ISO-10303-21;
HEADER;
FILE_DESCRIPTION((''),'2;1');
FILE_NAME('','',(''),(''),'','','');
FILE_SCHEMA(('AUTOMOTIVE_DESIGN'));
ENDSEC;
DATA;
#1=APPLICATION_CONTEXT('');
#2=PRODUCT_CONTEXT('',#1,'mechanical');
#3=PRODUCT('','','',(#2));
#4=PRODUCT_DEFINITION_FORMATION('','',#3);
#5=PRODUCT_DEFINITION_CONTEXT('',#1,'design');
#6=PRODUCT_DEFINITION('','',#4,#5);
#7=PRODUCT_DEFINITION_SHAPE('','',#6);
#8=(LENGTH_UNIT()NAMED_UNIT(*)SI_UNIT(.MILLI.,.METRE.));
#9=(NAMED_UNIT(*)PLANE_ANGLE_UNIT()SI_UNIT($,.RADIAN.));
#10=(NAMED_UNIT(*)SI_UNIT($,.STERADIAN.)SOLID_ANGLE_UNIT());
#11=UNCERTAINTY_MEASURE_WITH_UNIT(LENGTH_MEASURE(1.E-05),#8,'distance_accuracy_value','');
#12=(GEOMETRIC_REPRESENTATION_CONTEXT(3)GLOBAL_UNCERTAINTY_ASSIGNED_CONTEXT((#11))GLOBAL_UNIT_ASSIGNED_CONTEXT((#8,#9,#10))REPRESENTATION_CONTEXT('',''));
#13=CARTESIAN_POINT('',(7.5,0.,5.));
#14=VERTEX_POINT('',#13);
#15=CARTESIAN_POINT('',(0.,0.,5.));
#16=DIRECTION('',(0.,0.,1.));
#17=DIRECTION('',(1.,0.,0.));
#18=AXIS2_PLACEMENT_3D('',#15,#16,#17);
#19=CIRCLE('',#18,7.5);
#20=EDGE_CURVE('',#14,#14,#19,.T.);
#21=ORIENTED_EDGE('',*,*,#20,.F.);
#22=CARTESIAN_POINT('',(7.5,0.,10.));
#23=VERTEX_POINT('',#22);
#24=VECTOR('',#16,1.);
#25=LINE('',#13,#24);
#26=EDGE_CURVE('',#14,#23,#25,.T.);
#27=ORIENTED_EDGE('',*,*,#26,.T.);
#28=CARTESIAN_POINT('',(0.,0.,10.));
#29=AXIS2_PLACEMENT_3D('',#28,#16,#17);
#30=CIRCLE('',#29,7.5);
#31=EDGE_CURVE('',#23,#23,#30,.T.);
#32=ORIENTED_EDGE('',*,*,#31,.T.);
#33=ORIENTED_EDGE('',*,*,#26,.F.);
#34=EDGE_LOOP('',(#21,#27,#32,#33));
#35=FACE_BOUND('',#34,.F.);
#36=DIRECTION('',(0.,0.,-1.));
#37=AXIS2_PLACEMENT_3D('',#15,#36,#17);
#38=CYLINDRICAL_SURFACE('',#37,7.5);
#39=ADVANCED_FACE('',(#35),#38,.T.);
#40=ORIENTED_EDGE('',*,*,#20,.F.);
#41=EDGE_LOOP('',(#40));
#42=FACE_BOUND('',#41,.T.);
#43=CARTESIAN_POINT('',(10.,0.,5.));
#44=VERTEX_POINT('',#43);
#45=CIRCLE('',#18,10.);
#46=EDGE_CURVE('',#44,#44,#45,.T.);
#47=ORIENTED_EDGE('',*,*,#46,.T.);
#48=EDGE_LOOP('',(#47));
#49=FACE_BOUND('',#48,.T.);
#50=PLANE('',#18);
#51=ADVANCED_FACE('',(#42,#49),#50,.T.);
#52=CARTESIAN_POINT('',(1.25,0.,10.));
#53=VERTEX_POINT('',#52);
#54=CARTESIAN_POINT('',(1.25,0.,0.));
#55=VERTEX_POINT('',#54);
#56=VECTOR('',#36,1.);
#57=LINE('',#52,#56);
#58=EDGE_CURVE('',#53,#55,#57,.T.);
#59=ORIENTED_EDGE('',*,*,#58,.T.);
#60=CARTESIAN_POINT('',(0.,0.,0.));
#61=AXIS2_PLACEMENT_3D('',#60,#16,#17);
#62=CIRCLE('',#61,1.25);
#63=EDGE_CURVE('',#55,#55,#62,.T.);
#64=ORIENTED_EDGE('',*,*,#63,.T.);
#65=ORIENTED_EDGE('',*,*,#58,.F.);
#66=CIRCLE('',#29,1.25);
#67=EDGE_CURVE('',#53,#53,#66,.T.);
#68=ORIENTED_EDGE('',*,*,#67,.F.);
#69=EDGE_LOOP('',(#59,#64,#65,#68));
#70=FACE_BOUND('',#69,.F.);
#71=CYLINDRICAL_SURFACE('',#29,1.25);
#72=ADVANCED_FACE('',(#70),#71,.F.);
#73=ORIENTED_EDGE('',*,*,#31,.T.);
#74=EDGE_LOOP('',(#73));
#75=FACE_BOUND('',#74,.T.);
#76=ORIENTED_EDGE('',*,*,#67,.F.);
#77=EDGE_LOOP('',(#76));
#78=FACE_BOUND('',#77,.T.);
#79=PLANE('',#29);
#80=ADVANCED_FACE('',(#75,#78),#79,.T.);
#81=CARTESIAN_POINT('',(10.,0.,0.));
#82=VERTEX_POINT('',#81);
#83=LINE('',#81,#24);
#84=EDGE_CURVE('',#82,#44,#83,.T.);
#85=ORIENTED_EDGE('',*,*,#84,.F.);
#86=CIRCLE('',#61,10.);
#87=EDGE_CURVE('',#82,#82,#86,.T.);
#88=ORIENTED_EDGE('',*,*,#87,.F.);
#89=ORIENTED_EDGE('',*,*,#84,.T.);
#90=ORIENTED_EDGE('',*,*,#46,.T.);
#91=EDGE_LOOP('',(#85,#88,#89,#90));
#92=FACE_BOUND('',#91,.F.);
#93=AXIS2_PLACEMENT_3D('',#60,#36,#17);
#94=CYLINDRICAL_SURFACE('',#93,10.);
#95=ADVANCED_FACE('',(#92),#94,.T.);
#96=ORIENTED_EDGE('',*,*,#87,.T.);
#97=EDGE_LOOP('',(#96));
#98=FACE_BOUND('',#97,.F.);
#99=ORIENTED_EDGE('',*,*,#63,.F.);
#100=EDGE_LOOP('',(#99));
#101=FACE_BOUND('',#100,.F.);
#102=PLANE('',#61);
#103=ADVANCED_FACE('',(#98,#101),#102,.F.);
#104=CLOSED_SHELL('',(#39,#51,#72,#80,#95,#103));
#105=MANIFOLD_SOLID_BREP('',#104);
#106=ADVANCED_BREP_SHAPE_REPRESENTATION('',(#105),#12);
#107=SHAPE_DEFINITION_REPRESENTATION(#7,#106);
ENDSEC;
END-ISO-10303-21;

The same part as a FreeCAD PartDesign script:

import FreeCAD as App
import Part
import Sketcher

V = App.Vector
Q = App.Units.Quantity

doc = App.newDocument("Part")
body = doc.addObject("PartDesign::Body", "Body")

sketch1 = body.newObject("Sketcher::SketchObject", "Sketch")
sketch1.AttachmentSupport = (doc.getObject("XY_Plane"), [""])
sketch1.MapMode = "FlatFace"
sketch1.addGeometry(Part.Circle(V(0, 0, 0), V(0, 0, 1), 10), False)
sketch1.addConstraint([
    Sketcher.Constraint("Coincident", 0, 3, -1, 1),
    Sketcher.Constraint("Diameter", 0, Q("20 mm")),
])
pad1 = body.newObject("PartDesign::Pad", "Pad")
pad1.Profile = sketch1
pad1.Length = 5

sketch2 = body.newObject("Sketcher::SketchObject", "Sketch001")
sketch2.AttachmentSupport = (doc.getObject("XY_Plane"), [""])
sketch2.MapMode = "FlatFace"
sketch2.AttachmentOffset = App.Placement(V(0, 0, 5), App.Rotation())
sketch2.addGeometry(Part.Circle(V(0, 0, 0), V(0, 0, 1), 8), False)
sketch2.addConstraint([
    Sketcher.Constraint("Coincident", 0, 3, -1, 1),
    Sketcher.Constraint("Diameter", 0, Q("15 mm")),
])
pad2 = body.newObject("PartDesign::Pad", "Pad001")
pad2.Profile = sketch2
pad2.Length = 5

sketch3 = body.newObject("Sketcher::SketchObject", "Sketch002")
sketch3.AttachmentSupport = (doc.getObject("XY_Plane"), [""])
sketch3.MapMode = "FlatFace"
sketch3.AttachmentOffset = App.Placement(V(0, 0, 10), App.Rotation())
sketch3.addGeometry(Part.Circle(V(0, 0, 0), V(0, 0, 1), 1.2), False)
sketch3.addConstraint([
    Sketcher.Constraint("Coincident", 0, 3, -1, 1),
    Sketcher.Constraint("Diameter", 0, Q("2.5 mm")),
])
pocket1 = body.newObject("PartDesign::Pocket", "Pocket")
pocket1.Profile = sketch3
pocket1.Length = 25.4

doc.recompute()
